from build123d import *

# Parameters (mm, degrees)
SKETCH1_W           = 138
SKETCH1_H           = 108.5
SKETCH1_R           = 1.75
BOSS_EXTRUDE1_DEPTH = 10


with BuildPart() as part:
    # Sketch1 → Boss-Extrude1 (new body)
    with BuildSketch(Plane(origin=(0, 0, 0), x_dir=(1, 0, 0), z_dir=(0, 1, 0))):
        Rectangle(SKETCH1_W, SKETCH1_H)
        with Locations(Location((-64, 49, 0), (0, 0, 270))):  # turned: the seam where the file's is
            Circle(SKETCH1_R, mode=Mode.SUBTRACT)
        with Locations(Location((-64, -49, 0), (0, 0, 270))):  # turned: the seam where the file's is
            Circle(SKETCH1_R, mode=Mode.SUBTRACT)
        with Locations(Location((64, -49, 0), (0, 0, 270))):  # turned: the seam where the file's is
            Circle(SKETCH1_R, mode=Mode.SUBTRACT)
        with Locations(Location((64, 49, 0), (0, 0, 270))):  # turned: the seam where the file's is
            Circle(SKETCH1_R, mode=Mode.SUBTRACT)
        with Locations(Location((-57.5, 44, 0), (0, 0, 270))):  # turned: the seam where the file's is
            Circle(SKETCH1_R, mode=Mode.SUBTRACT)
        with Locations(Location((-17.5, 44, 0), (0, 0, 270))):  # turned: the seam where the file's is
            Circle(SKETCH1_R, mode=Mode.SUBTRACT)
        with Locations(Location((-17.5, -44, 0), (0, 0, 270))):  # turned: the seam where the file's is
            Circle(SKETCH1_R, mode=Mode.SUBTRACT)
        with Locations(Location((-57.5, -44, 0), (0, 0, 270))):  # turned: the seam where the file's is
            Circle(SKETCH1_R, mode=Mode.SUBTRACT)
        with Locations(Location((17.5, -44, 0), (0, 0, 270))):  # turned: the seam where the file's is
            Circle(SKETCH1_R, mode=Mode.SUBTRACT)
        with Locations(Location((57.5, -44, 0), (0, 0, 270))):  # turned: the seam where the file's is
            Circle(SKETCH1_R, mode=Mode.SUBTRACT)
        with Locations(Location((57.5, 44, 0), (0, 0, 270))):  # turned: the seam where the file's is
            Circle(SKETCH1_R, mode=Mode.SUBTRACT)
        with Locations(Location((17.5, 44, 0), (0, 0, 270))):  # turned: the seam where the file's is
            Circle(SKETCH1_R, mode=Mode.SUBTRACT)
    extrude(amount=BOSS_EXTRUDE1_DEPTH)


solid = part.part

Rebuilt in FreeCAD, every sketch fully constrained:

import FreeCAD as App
import Part
import Sketcher

V = App.Vector

doc = App.newDocument("Part")
body = doc.addObject("PartDesign::Body", "Body")

# Sketch on XZ plane
sketch1 = doc.addObject("Sketcher::SketchObject", "Sketch")
body.addObject(sketch1)
sketch1.AttachmentSupport = (doc.XZ_Plane, [""])
sketch1.MapMode = "FlatFace"
sketch1.addGeometry([
    Part.LineSegment(V(-69, -54.2, 0), V(-69, 54.2, 0)),  # 0
    Part.LineSegment(V(-69, 54.2, 0), V(69, 54.2, 0)),  # 1
    Part.LineSegment(V(69, 54.2, 0), V(69, -54.2, 0)),  # 2
    Part.LineSegment(V(69, -54.2, 0), V(-69, -54.2, 0)),  # 3
    Part.Circle(V(-64, 49, 0), V(0, 0, 1), 1.8),  # 4
    Part.Circle(V(-57.5, 44, 0), V(0, 0, 1), 1.8),  # 5
    Part.Circle(V(-17.5, 44, 0), V(0, 0, 1), 1.8),  # 6
    Part.Circle(V(17.5, 44, 0), V(0, 0, 1), 1.8),  # 7
    Part.Circle(V(64, 49, 0), V(0, 0, 1), 1.8),  # 8
    Part.Circle(V(57.5, 44, 0), V(0, 0, 1), 1.8),  # 9
    Part.Circle(V(-57.5, -44, 0), V(0, 0, 1), 1.8),  # 10
    Part.Circle(V(-64, -49, 0), V(0, 0, 1), 1.8),  # 11
    Part.Circle(V(-17.5, -44, 0), V(0, 0, 1), 1.8),  # 12
    Part.Circle(V(17.5, -44, 0), V(0, 0, 1), 1.8),  # 13
    Part.Circle(V(57.5, -44, 0), V(0, 0, 1), 1.8),  # 14
    Part.Circle(V(64, -49, 0), V(0, 0, 1), 1.8),  # 15
], False)
sketch1.addConstraint([
    Sketcher.Constraint("Coincident", 0, 2, 1, 1),
    Sketcher.Constraint("Coincident", 1, 2, 2, 1),
    Sketcher.Constraint("Coincident", 2, 2, 3, 1),
    Sketcher.Constraint("Coincident", 3, 2, 0, 1),
    Sketcher.Constraint("Vertical", 0),
    Sketcher.Constraint("Horizontal", 1),
    Sketcher.Constraint("Vertical", 2),
    Sketcher.Constraint("Horizontal", 3),
    Sketcher.Constraint("Equal", 4, 5),
    Sketcher.Constraint("Equal", 5, 6),
    Sketcher.Constraint("Equal", 6, 7),
    Sketcher.Constraint("Equal", 7, 8),
    Sketcher.Constraint("Equal", 8, 9),
    Sketcher.Constraint("Equal", 9, 10),
    Sketcher.Constraint("Equal", 10, 11),
    Sketcher.Constraint("Equal", 11, 12),
    Sketcher.Constraint("Equal", 12, 13),
    Sketcher.Constraint("Equal", 13, 14),
    Sketcher.Constraint("Equal", 14, 15),
    Sketcher.Constraint("Symmetric", 9, 3, 10, 3, -1, 1),
    Sketcher.Constraint("Symmetric", 8, 3, 11, 3, -1, 1),
    Sketcher.Constraint("Symmetric", 7, 3, 12, 3, -1, 1),
    Sketcher.Constraint("Symmetric", 6, 3, 13, 3, -1, 1),
    Sketcher.Constraint("Symmetric", 5, 3, 14, 3, -1, 1),
    Sketcher.Constraint("Symmetric", 4, 3, 15, 3, -1, 1),
    Sketcher.Constraint("Symmetric", 0, 2, 2, 2, -1, 1),
    Sketcher.Constraint("Symmetric", 6, 3, 7, 3, -2),
    Sketcher.Constraint("Symmetric", 4, 3, 8, 3, -2),
    Sketcher.Constraint("Symmetric", 5, 3, 9, 3, -2),
    Sketcher.Constraint("Horizontal", 5, 3, 6, 3),
    Sketcher.Constraint("Diameter", 4, 3.5),
    Sketcher.Constraint("DistanceX", 1, 1, 1, 2, 138.0),
    Sketcher.Constraint("DistanceY", 0, 1, 0, 2, 108.5),
    Sketcher.Constraint("DistanceX", 4, 3, -1, 1, 64.0),
    Sketcher.Constraint("DistanceY", -1, 1, 4, 3, 49.0),
    Sketcher.Constraint("DistanceY", -1, 1, 5, 3, 44.0),
    Sketcher.Constraint("DistanceX", 5, 3, 6, 3, 40.0),
    Sketcher.Constraint("DistanceX", 6, 3, 7, 3, 35.0),
])
pad1 = doc.addObject("PartDesign::Pad", "Pad")
body.addObject(pad1)
pad1.Profile = sketch1
pad1.Length = 10
pad1.Reversed = True

doc.recompute()
